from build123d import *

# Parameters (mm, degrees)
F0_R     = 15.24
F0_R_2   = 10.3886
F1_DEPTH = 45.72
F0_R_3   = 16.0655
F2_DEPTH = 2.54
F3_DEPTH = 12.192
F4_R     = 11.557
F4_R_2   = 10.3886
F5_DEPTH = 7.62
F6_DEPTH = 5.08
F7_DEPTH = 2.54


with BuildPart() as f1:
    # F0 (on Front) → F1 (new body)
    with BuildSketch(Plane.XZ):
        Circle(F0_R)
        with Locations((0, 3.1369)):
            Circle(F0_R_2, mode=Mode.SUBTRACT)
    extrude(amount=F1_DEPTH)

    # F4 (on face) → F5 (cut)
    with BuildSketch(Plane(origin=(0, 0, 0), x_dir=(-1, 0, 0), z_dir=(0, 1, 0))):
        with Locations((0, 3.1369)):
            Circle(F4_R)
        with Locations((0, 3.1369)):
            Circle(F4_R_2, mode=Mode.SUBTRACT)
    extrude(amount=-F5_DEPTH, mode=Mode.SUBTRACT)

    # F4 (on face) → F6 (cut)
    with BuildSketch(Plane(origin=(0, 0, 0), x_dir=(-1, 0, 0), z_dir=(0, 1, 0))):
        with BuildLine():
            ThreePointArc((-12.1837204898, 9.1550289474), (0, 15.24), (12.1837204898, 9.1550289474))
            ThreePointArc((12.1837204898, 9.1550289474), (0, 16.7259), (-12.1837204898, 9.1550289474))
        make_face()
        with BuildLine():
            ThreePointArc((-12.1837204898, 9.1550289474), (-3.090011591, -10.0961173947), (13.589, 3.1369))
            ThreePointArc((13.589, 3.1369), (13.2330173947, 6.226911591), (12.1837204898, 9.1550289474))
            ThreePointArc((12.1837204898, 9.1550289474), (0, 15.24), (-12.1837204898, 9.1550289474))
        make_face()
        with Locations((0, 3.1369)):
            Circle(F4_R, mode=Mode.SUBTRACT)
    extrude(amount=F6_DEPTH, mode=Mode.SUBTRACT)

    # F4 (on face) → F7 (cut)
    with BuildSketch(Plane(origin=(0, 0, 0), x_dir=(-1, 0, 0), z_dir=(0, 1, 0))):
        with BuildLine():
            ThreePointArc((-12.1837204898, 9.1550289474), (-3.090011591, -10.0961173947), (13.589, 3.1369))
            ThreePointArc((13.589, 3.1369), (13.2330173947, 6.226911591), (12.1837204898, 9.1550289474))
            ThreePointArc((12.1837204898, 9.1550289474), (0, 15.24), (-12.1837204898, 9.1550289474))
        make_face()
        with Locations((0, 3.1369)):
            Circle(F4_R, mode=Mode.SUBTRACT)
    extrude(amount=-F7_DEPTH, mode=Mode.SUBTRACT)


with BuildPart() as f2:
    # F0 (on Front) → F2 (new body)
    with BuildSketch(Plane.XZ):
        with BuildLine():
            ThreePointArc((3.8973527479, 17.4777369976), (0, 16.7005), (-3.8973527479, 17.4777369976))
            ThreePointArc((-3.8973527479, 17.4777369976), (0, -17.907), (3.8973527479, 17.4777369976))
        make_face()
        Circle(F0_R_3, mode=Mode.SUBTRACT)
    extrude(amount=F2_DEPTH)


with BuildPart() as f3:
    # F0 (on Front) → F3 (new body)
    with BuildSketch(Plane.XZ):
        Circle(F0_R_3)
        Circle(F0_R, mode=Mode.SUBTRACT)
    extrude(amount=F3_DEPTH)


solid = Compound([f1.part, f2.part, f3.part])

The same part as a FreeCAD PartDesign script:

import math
import FreeCAD as App
import Part
import Sketcher
from FreeCAD import Vector
Q = App.Units.Quantity

doc = App.newDocument("Part")
params = doc.addObject("Spreadsheet::Sheet", "Params")
for row, (alias, value) in enumerate([
    ("sketch1_diameter", "1.2 in"),
    ("sketch1_diameter2", "0.818 in"),
    ("pad1_length", "1.8 in"),
    ("sketch2_diameter", "0.91 in"),
    ("sketch2_diameter2", "0.818 in"),
    ("pocket1_length", "0.3 in"),
    ("sketch3_diameter", "0.91 in"),
    ("sketch3_radius", "0.535 in"),
    ("pocket2_length", "0.2 in"),
    ("sketch4_radius", "0.6 in"),
    ("sketch4_diameter", "0.91 in"),
    ("sketch4_radius2", "0.535 in"),
    ("pocket3_length", "0.1 in"),
    ("sketch5_radius", "0.4 in"),
    ("sketch5_diameter", "1.265 in"),
    ("sketch5_radius2", "0.705 in"),
    ("pad2_length", "0.1 in"),
    ("sketch6_diameter", "1.2 in"),
    ("sketch6_diameter2", "1.265 in"),
    ("pad3_length", "0.48 in"),
], start=1):
    params.set(f"A{row}", alias)
    params.set(f"B{row}", "=" + value)
    params.setAlias(f"B{row}", alias)

body = doc.addObject("PartDesign::Body", "Body")

# Sketch on XZ plane
sketch1 = body.newObject("Sketcher::SketchObject", "Sketch")
sketch1.AttachmentSupport = (doc.getObject("XZ_Plane"), [""])
sketch1.MapMode = "FlatFace"
sketch1.addGeometry(Part.Circle(Vector(0, 0, 0), Vector(0, 0, 1), 15.24), False)
sketch1.addGeometry(Part.Circle(Vector(0, 3.1369, 0), Vector(0, 0, 1), 10.3886), False)
sketch1.addConstraint(Sketcher.Constraint("Coincident", 0, 3, -1, 1))
sketch1.addConstraint(Sketcher.Constraint("PointOnObject", 1, 3, -2))
sketch1.addConstraint(Sketcher.Constraint("Diameter", 0, Q("1.2 in")))
sketch1.addConstraint(Sketcher.Constraint("Diameter", 1, Q("0.818 in")))
sketch1.addConstraint(Sketcher.Constraint("DistanceY", -1, 1, 1, 3, Q("0.1235 in")))
sketch1.setExpression("Constraints[2]", "Params.sketch1_diameter")
sketch1.setExpression("Constraints[3]", "Params.sketch1_diameter2")
pad1 = body.newObject("PartDesign::Pad", "Pad")
pad1.Profile = sketch1
pad1.setExpression("Length", "Params.pad1_length")

# Sketch on XZ plane
sketch2 = body.newObject("Sketcher::SketchObject", "Sketch001")
sketch2.AttachmentSupport = (doc.getObject("XZ_Plane"), [""])
sketch2.MapMode = "FlatFace"
sketch2.addGeometry(Part.Circle(Vector(0, 3.1369, 0), Vector(0, 0, 1), 11.557), False)
sketch2.addGeometry(Part.Circle(Vector(0, 3.1369, 0), Vector(0, 0, 1), 10.3886), False)
sketch2.addConstraint(Sketcher.Constraint("Coincident", 1, 3, 0, 3))
sketch2.addConstraint(Sketcher.Constraint("PointOnObject", 0, 3, -2))
sketch2.addConstraint(Sketcher.Constraint("Diameter", 0, Q("0.91 in")))
sketch2.addConstraint(Sketcher.Constraint("Diameter", 1, Q("0.818 in")))
sketch2.addConstraint(Sketcher.Constraint("DistanceY", -1, 1, 0, 3, Q("0.1235 in")))
sketch2.setExpression("Constraints[2]", "Params.sketch2_diameter")
sketch2.setExpression("Constraints[3]", "Params.sketch2_diameter2")
pocket1 = body.newObject("PartDesign::Pocket", "Pocket")
pocket1.Profile = sketch2
pocket1.setExpression("Length", "Params.pocket1_length")
pocket1.Reversed = True

# Sketch on XZ plane
sketch3 = body.newObject("Sketcher::SketchObject", "Sketch002")
sketch3.AttachmentSupport = (doc.getObject("XZ_Plane"), [""])
sketch3.MapMode = "FlatFace"
sketch3.addGeometry(Part.ArcOfCircle(Part.Circle(Vector(0, 3.1369, 0), Vector(0, 0, 1), 13.589), math.radians(26.286994), math.radians(153.713006)), False)
sketch3.addGeometry(Part.ArcOfCircle(Part.Circle(Vector(0, 3.1369, 0), Vector(0, 0, 1), 13.589), math.radians(180), math.radians(386.286994)), False)
sketch3.addGeometry(Part.ArcOfCircle(Part.Circle(Vector(0, 3.1369, 0), Vector(0, 0, 1), 13.589), math.radians(153.713006), math.radians(180)), False)
sketch3.addGeometry(Part.Circle(Vector(0, 3.1369, 0), Vector(0, 0, 1), 11.557), False)
sketch3.addConstraint(Sketcher.Constraint("Tangent", 0, 1, 1, 2))
sketch3.addConstraint(Sketcher.Constraint("Tangent", 1, 1, 2, 2))
sketch3.addConstraint(Sketcher.Constraint("Tangent", 2, 1, 0, 2))
sketch3.addConstraint(Sketcher.Constraint("Coincident", 3, 3, 0, 3))
sketch3.addConstraint(Sketcher.Constraint("Symmetric", 0, 1, 2, 1, -2))
sketch3.addConstraint(Sketcher.Constraint("Horizontal", 3, 3, 1, 1))
sketch3.addConstraint(Sketcher.Constraint("Diameter", 3, Q("0.91 in")))
sketch3.addConstraint(Sketcher.Constraint("Radius", 0, Q("0.535 in")))
sketch3.addConstraint(Sketcher.Constraint("DistanceY", -1, 1, 0, 3, Q("0.1235 in")))
sketch3.addConstraint(Sketcher.Constraint("DistanceX", -1, 1, 0, 1, Q("12.18372 mm")))
sketch3.setExpression("Constraints[6]", "Params.sketch3_diameter")
sketch3.setExpression("Constraints[7]", "Params.sketch3_radius")
pocket2 = body.newObject("PartDesign::Pocket", "Pocket001")
pocket2.Profile = sketch3
pocket2.setExpression("Length", "Params.pocket2_length")

# Sketch on XZ plane
sketch4 = body.newObject("Sketcher::SketchObject", "Sketch003")
sketch4.AttachmentSupport = (doc.getObject("XZ_Plane"), [""])
sketch4.MapMode = "FlatFace"
sketch4.addGeometry(Part.ArcOfCircle(Part.Circle(Vector(0, 3.1369, 0), Vector(0, 0, 1), 13.589), math.radians(180), math.radians(386.286994)), False)
sketch4.addGeometry(Part.ArcOfCircle(Part.Circle(Vector(0, 3.1369, 0), Vector(0, 0, 1), 13.589), math.radians(153.713006), math.radians(180)), False)
sketch4.addGeometry(Part.ArcOfCircle(Part.Circle(Vector(0, 0, 0), Vector(0, 0, 1), 15.24), math.radians(36.921745), math.radians(143.078255)), False)
sketch4.addGeometry(Part.Circle(Vector(0, 3.1369, 0), Vector(0, 0, 1), 11.557), False)
sketch4.addConstraint(Sketcher.Constraint("Tangent", 0, 1, 1, 2))
sketch4.addConstraint(Sketcher.Constraint("Coincident", 1, 1, 2, 2))
sketch4.addConstraint(Sketcher.Constraint("Coincident", 2, 1, 0, 2))
sketch4.addConstraint(Sketcher.Constraint("Coincident", 2, 3, -1, 1))
sketch4.addConstraint(Sketcher.Constraint("Coincident", 3, 3, 0, 3))
sketch4.addConstraint(Sketcher.Constraint("Equal", 0, 1))
sketch4.addConstraint(Sketcher.Constraint("PointOnObject", 0, 3, -2))
sketch4.addConstraint(Sketcher.Constraint("Horizontal", 3, 3, 0, 1))
sketch4.addConstraint(Sketcher.Constraint("Radius", 2, Q("0.6 in")))
sketch4.addConstraint(Sketcher.Constraint("Diameter", 3, Q("0.91 in")))
sketch4.addConstraint(Sketcher.Constraint("Radius", 0, Q("0.535 in")))
sketch4.addConstraint(Sketcher.Constraint("DistanceY", -1, 1, 0, 3, Q("0.1235 in")))
sketch4.setExpression("Constraints[8]", "Params.sketch4_radius")
sketch4.setExpression("Constraints[9]", "Params.sketch4_diameter")
sketch4.setExpression("Constraints[10]", "Params.sketch4_radius2")
pocket3 = body.newObject("PartDesign::Pocket", "Pocket002")
pocket3.Profile = sketch4
pocket3.setExpression("Length", "Params.pocket3_length")
pocket3.Reversed = True
body2 = doc.addObject("PartDesign::Body", "Body001")

# Sketch on XZ plane
sketch5 = body2.newObject("Sketcher::SketchObject", "Sketch004")
sketch5.AttachmentSupport = (doc.getObject("XZ_Plane001"), [""])
sketch5.MapMode = "FlatFace"
sketch5.addGeometry(Part.ArcOfCircle(Part.Circle(Vector(0, 26.8605, 0), Vector(0, 0, 1), 10.16), math.radians(-112.556712), math.radians(-67.443288)), False)
sketch5.addGeometry(Part.ArcOfCircle(Part.Circle(Vector(0, 0, 0), Vector(0, 0, 1), 17.907), math.radians(102.570697), math.radians(437.429303)), False)
sketch5.addGeometry(Part.Circle(Vector(0, 0, 0), Vector(0, 0, 1), 16.0655), False)
sketch5.addConstraint(Sketcher.Constraint("Coincident", 0, 1, 1, 1))
sketch5.addConstraint(Sketcher.Constraint("Coincident", 1, 2, 0, 2))
sketch5.addConstraint(Sketcher.Constraint("Coincident", 1, 3, -1, 1))
sketch5.addConstraint(Sketcher.Constraint("Coincident", 2, 3, -1, 1))
sketch5.addConstraint(Sketcher.Constraint("PointOnObject", 0, 3, -2))
sketch5.addConstraint(Sketcher.Constraint("Radius", 0, Q("0.4 in")))
sketch5.addConstraint(Sketcher.Constraint("Diameter", 2, Q("1.265 in")))
sketch5.addConstraint(Sketcher.Constraint("Radius", 1, Q("0.705 in")))
sketch5.addConstraint(Sketcher.Constraint("DistanceY", -1, 1, 0, 3, Q("1.0575 in")))
sketch5.setExpression("Constraints[5]", "Params.sketch5_radius")
sketch5.setExpression("Constraints[6]", "Params.sketch5_diameter")
sketch5.setExpression("Constraints[7]", "Params.sketch5_radius2")
pad2 = body2.newObject("PartDesign::Pad", "Pad001")
pad2.Profile = sketch5
pad2.setExpression("Length", "Params.pad2_length")
body3 = doc.addObject("PartDesign::Body", "Body002")

# Sketch on XZ plane
sketch6 = body3.newObject("Sketcher::SketchObject", "Sketch005")
sketch6.AttachmentSupport = (doc.getObject("XZ_Plane002"), [""])
sketch6.MapMode = "FlatFace"
sketch6.addGeometry(Part.Circle(Vector(0, 0, 0), Vector(0, 0, 1), 16.0655), False)
sketch6.addGeometry(Part.Circle(Vector(0, 0, 0), Vector(0, 0, 1), 15.24), False)
sketch6.addConstraint(Sketcher.Constraint("Coincident", 0, 3, -1, 1))
sketch6.addConstraint(Sketcher.Constraint("Coincident", 1, 3, -1, 1))
sketch6.addConstraint(Sketcher.Constraint("Diameter", 1, Q("1.2 in")))
sketch6.addConstraint(Sketcher.Constraint("Diameter", 0, Q("1.265 in")))
sketch6.setExpression("Constraints[2]", "Params.sketch6_diameter")
sketch6.setExpression("Constraints[3]", "Params.sketch6_diameter2")
pad3 = body3.newObject("PartDesign::Pad", "Pad002")
pad3.Profile = sketch6
pad3.setExpression("Length", "Params.pad3_length")

doc.recompute()
